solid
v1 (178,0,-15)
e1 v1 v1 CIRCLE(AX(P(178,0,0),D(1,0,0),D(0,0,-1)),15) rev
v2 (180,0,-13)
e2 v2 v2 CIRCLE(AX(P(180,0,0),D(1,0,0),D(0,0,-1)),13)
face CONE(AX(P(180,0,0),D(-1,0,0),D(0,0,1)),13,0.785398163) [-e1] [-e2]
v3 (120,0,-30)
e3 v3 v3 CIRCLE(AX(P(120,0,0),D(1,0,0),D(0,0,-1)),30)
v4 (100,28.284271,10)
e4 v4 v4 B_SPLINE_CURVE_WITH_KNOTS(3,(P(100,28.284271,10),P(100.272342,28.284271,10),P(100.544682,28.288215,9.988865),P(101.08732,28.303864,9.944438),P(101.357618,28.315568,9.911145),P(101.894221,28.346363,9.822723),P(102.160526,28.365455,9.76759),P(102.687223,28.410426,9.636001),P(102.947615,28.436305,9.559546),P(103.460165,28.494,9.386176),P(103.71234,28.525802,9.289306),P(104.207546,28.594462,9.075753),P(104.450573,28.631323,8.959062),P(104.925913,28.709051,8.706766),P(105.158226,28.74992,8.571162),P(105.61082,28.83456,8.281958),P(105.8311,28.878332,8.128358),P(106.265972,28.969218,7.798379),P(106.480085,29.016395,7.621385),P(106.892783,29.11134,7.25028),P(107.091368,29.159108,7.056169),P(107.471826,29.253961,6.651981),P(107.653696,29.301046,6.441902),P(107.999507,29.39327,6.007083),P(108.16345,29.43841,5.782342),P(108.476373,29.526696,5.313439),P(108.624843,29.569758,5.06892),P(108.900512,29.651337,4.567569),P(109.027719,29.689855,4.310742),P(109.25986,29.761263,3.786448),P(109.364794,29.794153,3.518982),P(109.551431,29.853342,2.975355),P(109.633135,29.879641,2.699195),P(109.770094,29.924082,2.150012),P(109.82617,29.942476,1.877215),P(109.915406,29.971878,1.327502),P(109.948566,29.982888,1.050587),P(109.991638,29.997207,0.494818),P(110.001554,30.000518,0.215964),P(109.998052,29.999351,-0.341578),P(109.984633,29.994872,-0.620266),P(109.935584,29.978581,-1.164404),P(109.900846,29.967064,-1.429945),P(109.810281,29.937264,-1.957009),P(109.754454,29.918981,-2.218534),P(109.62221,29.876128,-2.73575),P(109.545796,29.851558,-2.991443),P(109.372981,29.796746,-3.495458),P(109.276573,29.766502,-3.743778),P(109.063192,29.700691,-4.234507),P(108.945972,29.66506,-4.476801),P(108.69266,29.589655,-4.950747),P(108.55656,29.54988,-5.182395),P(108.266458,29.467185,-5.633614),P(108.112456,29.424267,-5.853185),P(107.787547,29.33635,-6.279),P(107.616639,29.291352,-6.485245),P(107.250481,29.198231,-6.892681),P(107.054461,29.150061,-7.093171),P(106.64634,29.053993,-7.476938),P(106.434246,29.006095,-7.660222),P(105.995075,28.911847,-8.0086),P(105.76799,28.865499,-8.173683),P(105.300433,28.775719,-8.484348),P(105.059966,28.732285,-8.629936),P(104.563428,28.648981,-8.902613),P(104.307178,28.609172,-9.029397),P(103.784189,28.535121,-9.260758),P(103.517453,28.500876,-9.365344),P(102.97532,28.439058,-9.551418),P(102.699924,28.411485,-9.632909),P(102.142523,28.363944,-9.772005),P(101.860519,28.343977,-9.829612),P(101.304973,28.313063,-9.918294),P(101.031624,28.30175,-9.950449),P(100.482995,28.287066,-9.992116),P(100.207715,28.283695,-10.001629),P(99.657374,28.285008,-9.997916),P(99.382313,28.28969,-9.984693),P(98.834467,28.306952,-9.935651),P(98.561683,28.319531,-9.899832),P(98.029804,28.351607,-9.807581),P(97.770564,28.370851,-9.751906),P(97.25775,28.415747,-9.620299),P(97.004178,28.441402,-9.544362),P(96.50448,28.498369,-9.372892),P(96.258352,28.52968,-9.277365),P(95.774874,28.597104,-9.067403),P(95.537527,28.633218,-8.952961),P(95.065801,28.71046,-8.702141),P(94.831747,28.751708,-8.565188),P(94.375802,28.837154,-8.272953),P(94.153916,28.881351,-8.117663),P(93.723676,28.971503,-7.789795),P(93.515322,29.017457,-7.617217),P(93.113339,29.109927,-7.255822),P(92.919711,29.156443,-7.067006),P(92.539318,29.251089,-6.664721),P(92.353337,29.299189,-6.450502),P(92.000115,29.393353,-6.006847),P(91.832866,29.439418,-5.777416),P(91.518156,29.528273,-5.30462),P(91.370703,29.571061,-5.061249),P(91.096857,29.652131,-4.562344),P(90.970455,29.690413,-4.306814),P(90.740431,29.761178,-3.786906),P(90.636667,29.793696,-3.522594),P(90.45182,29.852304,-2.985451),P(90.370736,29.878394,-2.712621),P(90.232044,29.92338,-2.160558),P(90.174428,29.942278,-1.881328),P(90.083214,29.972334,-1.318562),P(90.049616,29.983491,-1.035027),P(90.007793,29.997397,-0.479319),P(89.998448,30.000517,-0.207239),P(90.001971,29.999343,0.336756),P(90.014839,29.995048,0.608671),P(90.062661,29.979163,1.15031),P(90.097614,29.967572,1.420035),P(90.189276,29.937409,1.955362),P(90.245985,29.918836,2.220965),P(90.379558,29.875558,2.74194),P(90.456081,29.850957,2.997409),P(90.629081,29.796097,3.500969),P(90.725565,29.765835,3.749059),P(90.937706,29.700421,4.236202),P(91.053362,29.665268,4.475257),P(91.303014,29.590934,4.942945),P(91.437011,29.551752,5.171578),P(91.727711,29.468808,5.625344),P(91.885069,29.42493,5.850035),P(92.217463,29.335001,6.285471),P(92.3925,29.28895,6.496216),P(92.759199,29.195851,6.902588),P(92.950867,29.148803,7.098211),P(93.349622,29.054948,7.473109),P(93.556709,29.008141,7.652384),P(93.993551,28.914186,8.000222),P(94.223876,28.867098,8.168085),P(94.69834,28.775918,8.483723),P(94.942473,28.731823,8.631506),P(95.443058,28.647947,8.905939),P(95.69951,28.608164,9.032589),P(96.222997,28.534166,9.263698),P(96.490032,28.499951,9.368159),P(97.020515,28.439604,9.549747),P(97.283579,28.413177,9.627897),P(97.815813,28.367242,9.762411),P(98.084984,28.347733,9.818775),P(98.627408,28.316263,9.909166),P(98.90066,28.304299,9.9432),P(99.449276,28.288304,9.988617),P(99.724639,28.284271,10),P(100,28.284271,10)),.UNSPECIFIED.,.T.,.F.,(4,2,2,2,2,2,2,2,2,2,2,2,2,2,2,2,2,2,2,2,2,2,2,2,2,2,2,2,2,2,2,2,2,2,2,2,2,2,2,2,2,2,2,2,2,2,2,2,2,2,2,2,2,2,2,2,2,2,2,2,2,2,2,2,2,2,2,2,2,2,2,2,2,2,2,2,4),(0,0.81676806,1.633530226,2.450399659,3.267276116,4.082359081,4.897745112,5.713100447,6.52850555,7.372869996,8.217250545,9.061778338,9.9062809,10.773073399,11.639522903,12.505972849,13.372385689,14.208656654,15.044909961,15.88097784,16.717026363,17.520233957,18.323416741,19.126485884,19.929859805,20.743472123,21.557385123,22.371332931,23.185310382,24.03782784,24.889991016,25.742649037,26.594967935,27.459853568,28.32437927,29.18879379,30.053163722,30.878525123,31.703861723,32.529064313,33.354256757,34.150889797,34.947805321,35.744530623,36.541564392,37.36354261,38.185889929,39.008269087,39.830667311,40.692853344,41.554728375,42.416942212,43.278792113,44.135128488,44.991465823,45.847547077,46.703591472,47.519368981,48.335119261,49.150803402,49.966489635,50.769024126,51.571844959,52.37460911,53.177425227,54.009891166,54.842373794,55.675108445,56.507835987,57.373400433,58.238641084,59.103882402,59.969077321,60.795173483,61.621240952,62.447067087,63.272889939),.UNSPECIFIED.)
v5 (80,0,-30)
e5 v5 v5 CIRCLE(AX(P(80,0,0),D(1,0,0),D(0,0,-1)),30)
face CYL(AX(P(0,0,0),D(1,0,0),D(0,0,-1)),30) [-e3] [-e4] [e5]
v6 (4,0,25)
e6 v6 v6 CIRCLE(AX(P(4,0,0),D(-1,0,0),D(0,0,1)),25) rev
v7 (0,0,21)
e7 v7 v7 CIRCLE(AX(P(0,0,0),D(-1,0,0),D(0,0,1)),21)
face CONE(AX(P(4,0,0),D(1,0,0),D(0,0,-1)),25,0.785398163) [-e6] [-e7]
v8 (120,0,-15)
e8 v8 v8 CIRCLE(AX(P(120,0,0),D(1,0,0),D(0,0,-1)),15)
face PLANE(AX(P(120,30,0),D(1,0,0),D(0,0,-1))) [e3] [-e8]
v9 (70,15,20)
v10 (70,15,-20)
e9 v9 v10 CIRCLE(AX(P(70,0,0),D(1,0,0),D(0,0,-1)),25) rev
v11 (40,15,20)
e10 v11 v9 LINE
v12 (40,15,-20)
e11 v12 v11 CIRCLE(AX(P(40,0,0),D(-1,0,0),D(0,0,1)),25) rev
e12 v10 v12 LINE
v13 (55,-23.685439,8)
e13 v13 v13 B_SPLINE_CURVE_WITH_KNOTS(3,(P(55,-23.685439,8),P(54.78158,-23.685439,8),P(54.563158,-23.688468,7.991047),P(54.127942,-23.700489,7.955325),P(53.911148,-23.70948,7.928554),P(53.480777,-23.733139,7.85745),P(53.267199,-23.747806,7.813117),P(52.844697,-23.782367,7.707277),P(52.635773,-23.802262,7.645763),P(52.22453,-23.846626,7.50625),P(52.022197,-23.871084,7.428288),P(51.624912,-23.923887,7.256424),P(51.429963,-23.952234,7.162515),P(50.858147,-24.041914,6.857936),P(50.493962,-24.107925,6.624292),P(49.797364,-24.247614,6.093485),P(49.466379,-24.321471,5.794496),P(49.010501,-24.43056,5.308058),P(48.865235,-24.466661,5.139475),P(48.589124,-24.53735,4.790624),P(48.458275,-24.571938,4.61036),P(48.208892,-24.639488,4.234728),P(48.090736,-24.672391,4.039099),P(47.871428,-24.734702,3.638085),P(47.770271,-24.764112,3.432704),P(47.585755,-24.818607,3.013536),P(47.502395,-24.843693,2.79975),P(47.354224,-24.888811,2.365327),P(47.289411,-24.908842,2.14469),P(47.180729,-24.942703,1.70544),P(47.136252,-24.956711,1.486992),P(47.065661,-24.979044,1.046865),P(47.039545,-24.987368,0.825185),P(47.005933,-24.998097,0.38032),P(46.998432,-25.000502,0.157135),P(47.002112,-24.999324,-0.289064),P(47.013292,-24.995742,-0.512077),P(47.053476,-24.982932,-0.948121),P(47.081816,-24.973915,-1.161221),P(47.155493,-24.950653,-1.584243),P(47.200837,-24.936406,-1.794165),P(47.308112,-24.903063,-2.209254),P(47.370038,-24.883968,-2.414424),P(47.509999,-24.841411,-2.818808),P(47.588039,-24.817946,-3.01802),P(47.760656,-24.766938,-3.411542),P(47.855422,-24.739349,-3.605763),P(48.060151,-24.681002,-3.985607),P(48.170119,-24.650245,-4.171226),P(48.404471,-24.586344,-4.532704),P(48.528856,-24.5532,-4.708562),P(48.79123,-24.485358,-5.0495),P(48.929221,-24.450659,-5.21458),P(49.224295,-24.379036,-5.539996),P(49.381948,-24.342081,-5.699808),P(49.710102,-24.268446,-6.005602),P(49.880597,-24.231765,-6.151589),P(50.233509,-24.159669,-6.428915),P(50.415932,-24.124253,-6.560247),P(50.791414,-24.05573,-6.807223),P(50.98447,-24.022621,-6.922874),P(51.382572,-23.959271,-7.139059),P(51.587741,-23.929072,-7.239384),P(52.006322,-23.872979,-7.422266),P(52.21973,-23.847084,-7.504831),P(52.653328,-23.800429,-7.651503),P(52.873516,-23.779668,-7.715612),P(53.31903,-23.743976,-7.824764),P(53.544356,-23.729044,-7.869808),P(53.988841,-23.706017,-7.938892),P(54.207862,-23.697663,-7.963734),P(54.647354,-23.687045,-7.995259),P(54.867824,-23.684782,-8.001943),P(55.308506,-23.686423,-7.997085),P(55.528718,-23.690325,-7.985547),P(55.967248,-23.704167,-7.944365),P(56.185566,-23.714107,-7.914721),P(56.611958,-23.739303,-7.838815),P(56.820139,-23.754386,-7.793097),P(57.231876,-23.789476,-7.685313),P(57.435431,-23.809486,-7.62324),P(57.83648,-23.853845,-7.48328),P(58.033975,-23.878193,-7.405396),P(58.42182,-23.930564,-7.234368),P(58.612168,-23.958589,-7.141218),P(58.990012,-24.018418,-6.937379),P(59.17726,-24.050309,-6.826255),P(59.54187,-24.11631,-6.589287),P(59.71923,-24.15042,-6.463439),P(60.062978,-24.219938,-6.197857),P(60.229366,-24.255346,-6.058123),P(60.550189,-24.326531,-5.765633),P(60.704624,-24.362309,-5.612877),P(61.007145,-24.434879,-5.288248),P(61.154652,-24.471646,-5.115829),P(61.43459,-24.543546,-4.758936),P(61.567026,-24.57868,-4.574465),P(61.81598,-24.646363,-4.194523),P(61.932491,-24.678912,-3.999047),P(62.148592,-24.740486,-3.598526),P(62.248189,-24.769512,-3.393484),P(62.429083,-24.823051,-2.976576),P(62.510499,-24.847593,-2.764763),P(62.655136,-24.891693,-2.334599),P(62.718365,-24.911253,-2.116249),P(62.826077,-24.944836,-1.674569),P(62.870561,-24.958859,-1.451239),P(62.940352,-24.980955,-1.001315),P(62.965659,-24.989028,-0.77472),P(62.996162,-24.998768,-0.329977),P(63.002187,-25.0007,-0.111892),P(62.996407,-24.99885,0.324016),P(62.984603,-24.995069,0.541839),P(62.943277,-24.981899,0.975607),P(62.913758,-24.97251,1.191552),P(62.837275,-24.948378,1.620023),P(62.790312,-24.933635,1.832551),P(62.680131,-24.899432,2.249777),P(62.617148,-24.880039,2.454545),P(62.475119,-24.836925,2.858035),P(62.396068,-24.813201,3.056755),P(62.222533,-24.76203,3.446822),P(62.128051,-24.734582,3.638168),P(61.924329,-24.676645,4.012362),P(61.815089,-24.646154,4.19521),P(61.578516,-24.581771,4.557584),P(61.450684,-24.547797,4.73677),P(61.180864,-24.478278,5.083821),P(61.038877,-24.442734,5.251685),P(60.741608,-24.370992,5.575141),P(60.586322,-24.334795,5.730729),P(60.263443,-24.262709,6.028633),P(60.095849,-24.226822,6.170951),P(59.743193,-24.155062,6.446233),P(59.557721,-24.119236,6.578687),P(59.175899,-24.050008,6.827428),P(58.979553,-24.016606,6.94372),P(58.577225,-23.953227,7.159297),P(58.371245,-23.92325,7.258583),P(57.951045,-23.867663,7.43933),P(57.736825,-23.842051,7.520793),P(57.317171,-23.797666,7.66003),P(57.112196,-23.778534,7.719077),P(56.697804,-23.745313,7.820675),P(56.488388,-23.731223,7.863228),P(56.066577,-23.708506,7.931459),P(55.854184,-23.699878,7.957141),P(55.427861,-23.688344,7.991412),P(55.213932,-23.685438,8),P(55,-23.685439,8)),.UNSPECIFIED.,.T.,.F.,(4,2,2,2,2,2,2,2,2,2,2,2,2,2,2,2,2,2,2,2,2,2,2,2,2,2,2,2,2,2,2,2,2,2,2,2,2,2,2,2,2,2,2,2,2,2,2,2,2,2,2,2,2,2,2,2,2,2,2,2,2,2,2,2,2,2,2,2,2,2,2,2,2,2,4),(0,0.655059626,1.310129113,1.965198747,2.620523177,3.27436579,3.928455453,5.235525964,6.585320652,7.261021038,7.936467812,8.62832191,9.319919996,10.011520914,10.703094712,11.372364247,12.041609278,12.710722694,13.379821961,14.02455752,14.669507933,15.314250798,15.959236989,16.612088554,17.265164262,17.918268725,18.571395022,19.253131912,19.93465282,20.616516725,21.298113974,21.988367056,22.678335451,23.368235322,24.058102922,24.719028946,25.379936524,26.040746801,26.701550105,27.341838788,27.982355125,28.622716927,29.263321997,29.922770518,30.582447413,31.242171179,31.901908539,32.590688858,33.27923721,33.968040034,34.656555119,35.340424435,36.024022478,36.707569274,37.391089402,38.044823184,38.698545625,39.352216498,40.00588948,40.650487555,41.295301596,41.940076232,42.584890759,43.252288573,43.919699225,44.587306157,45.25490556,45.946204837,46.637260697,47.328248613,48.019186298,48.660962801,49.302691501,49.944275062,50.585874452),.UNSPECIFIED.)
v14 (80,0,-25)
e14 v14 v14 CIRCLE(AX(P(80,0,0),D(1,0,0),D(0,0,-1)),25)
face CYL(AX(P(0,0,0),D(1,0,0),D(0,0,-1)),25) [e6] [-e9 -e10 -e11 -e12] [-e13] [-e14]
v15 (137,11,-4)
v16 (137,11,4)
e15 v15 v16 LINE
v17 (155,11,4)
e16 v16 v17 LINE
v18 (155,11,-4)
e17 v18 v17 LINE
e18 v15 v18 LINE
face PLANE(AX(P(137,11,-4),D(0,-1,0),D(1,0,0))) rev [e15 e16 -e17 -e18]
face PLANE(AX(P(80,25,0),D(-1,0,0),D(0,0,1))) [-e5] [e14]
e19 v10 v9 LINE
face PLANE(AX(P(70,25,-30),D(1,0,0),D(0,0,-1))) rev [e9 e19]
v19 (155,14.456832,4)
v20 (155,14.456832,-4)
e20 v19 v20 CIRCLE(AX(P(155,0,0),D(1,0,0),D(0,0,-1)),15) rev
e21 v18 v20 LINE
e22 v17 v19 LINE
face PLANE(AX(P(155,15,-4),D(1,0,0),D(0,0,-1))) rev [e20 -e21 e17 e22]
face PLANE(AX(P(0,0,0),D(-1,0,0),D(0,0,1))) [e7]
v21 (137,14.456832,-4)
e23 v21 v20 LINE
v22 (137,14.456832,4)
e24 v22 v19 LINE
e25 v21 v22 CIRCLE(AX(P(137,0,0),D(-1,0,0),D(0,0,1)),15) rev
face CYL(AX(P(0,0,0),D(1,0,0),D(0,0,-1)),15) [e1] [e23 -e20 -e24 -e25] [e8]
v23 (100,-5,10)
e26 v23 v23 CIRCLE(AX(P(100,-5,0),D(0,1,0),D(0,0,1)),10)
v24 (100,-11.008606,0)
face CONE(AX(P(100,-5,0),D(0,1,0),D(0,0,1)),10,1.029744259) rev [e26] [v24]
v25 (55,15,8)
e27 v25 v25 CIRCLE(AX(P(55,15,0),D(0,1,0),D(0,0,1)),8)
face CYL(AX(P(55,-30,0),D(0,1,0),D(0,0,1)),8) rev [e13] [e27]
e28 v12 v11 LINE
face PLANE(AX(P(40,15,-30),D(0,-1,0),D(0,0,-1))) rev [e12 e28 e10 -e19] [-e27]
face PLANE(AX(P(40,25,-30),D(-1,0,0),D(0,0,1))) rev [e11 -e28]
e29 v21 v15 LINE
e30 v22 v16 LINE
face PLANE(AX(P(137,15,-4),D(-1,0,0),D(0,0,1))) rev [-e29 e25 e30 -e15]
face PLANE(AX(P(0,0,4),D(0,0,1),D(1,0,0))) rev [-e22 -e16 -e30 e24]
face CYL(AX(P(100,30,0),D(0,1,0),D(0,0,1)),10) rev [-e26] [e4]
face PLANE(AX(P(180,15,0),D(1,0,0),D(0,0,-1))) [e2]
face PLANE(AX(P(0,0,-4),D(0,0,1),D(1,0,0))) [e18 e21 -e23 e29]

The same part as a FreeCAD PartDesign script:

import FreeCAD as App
import Part
import Sketcher
Q = App.Units.Quantity


def edges_at(feature, points):
    """Names of the edges that pass closest to the given points."""
    edges = feature.Shape.Edges
    near = lambda p: min(range(len(edges)), key=lambda i: edges[i].distToShape(Part.Vertex(*p))[0])
    return sorted({f"Edge{near(p) + 1}" for p in points})

doc = App.newDocument("Part")
params = doc.addObject("Spreadsheet::Sheet", "Params")
for row, (alias, value) in enumerate([
    ("sketch1_width", "180 mm"),
    ("sketch1_width2", "60 mm"),
    ("sketch1_width3", "40 mm"),
    ("sketch1_height", "25 mm"),
    ("sketch1_height2", "15 mm"),
    ("revolution_angle", "360 deg"),
    ("sketch2_width", "30 mm"),
    ("sketch2_height", "10 mm"),
    ("sketch3_diameter", "16 mm"),
    ("sketch4_width", "18 mm"),
    ("sketch4_height", "4 mm"),
    ("pocket3_length", "8 mm"),
    ("sketch5_diameter", "20 mm"),
    ("hole_diameter", "20 mm"),
    ("hole_depth", "35 mm"),
    ("chamfer_size", "2 mm"),
    ("chamfer2_size", "4 mm"),
], start=1):
    params.set(f"A{row}", alias)
    params.set(f"B{row}", "=" + value)
    params.setAlias(f"B{row}", alias)

body = doc.addObject("PartDesign::Body", "Body")

sketch1 = doc.addObject("Sketcher::SketchObject", "Sketch")
body.addObject(sketch1)
sketch1.AttachmentSupport = (doc.XY_Plane, [""])
sketch1.MapMode = "FlatFace"
sketch1.addGeometry([
    Part.LineSegment(App.Vector(0, 25, 0), App.Vector(0, 0, 0)),
    Part.LineSegment(App.Vector(0, 0, 0), App.Vector(180, 0, 0)),
    Part.LineSegment(App.Vector(180, 0, 0), App.Vector(180, 15, 0)),
    Part.LineSegment(App.Vector(180, 15, 0), App.Vector(120, 15, 0)),
    Part.LineSegment(App.Vector(120, 15, 0), App.Vector(120, 30, 0)),
    Part.LineSegment(App.Vector(120, 30, 0), App.Vector(80, 30, 0)),
    Part.LineSegment(App.Vector(80, 30, 0), App.Vector(80, 25, 0)),
    Part.LineSegment(App.Vector(80, 25, 0), App.Vector(0, 25, 0)),
], False)
sketch1.addConstraint([
    Sketcher.Constraint("Coincident", 0, 2, 1, 1),
    Sketcher.Constraint("Coincident", 1, 2, 2, 1),
    Sketcher.Constraint("Coincident", 2, 2, 3, 1),
    Sketcher.Constraint("Coincident", 3, 2, 4, 1),
    Sketcher.Constraint("Coincident", 4, 2, 5, 1),
    Sketcher.Constraint("Coincident", 5, 2, 6, 1),
    Sketcher.Constraint("Coincident", 6, 2, 7, 1),
    Sketcher.Constraint("Coincident", 7, 2, 0, 1),
    Sketcher.Constraint("Vertical", 0),
    Sketcher.Constraint("Horizontal", 1),
    Sketcher.Constraint("Vertical", 2),
    Sketcher.Constraint("Horizontal", 3),
    Sketcher.Constraint("Vertical", 4),
    Sketcher.Constraint("Horizontal", 5),
    Sketcher.Constraint("Vertical", 6),
    Sketcher.Constraint("Horizontal", 7),
    Sketcher.Constraint("Coincident", 0, 2, -1, 1),
    Sketcher.Constraint("Equal", 2, 4),
    Sketcher.Constraint("DistanceX", 1, 1, 1, 2, Q("180 mm")),
    Sketcher.Constraint("DistanceX", 3, 2, 3, 1, Q("60 mm")),
    Sketcher.Constraint("DistanceX", 5, 2, 5, 1, Q("40 mm")),
    Sketcher.Constraint("DistanceY", 0, 2, 0, 1, Q("25 mm")),
    Sketcher.Constraint("DistanceY", 2, 1, 2, 2, Q("15 mm")),
])
sketch1.setExpression("Constraints[18]", "Params.sketch1_width")
sketch1.setExpression("Constraints[19]", "Params.sketch1_width2")
sketch1.setExpression("Constraints[20]", "Params.sketch1_width3")
sketch1.setExpression("Constraints[21]", "Params.sketch1_height")
sketch1.setExpression("Constraints[22]", "Params.sketch1_height2")
revolution = doc.addObject("PartDesign::Revolution", "Revolution")
body.addObject(revolution)
revolution.Profile = sketch1
revolution.ReferenceAxis = (sketch1, ["H_Axis"])
revolution.setExpression("Angle", "Params.revolution_angle")

sketch2 = doc.addObject("Sketcher::SketchObject", "Sketch001")
body.addObject(sketch2)
sketch2.AttachmentSupport = (doc.XY_Plane, [""])
sketch2.MapMode = "FlatFace"
sketch2.addGeometry([
    Part.LineSegment(App.Vector(40, 25, 0), App.Vector(40, 15, 0)),
    Part.LineSegment(App.Vector(40, 15, 0), App.Vector(70, 15, 0)),
    Part.LineSegment(App.Vector(70, 15, 0), App.Vector(70, 25, 0)),
    Part.LineSegment(App.Vector(70, 25, 0), App.Vector(40, 25, 0)),
], False)
sketch2.addConstraint([
    Sketcher.Constraint("Coincident", 0, 2, 1, 1),
    Sketcher.Constraint("Coincident", 1, 2, 2, 1),
    Sketcher.Constraint("Coincident", 2, 2, 3, 1),
    Sketcher.Constraint("Coincident", 3, 2, 0, 1),
    Sketcher.Constraint("Vertical", 0),
    Sketcher.Constraint("Horizontal", 1),
    Sketcher.Constraint("Vertical", 2),
    Sketcher.Constraint("Horizontal", 3),
    Sketcher.Constraint("DistanceX", 1, 1, 1, 2, Q("30 mm")),
    Sketcher.Constraint("DistanceY", 0, 2, 0, 1, Q("10 mm")),
    Sketcher.Constraint("DistanceX", -1, 1, 0, 2, Q("40 mm")),
    Sketcher.Constraint("DistanceY", -1, 1, 0, 2, Q("15 mm")),
])
sketch2.setExpression("Constraints[8]", "Params.sketch2_width")
sketch2.setExpression("Constraints[9]", "Params.sketch2_height")
pocket1 = doc.addObject("PartDesign::Pocket", "Pocket")
body.addObject(pocket1)
pocket1.Profile = sketch2
pocket1.Type = "ThroughAll"
pocket1.Midplane = True

sketch3 = doc.addObject("Sketcher::SketchObject", "Sketch002")
body.addObject(sketch3)
sketch3.AttachmentSupport = (doc.XZ_Plane, [""])
sketch3.MapMode = "FlatFace"
sketch3.AttachmentOffset = App.Placement(App.Vector(0, 0, -15), App.Rotation())
sketch3.addGeometry(Part.Circle(App.Vector(55, 0, 0), App.Vector(0, 0, 1), 8), False)
sketch3.addConstraint([
    Sketcher.Constraint("PointOnObject", 0, 3, -1),
    Sketcher.Constraint("Diameter", 0, Q("16 mm")),
    Sketcher.Constraint("DistanceX", -1, 1, 0, 3, Q("55 mm")),
])
sketch3.setExpression("Constraints[1]", "Params.sketch3_diameter")
pocket2 = doc.addObject("PartDesign::Pocket", "Pocket001")
body.addObject(pocket2)
pocket2.Profile = sketch3
pocket2.Type = "ThroughAll"
pocket2.Reversed = True

sketch4 = doc.addObject("Sketcher::SketchObject", "Sketch003")
body.addObject(sketch4)
sketch4.AttachmentSupport = (doc.XY_Plane, [""])
sketch4.MapMode = "FlatFace"
sketch4.addGeometry([
    Part.LineSegment(App.Vector(137, 15, 0), App.Vector(137, 11, 0)),
    Part.LineSegment(App.Vector(137, 11, 0), App.Vector(155, 11, 0)),
    Part.LineSegment(App.Vector(155, 11, 0), App.Vector(155, 15, 0)),
    Part.LineSegment(App.Vector(155, 15, 0), App.Vector(137, 15, 0)),
], False)
sketch4.addConstraint([
    Sketcher.Constraint("Coincident", 0, 2, 1, 1),
    Sketcher.Constraint("Coincident", 1, 2, 2, 1),
    Sketcher.Constraint("Coincident", 2, 2, 3, 1),
    Sketcher.Constraint("Coincident", 3, 2, 0, 1),
    Sketcher.Constraint("Vertical", 0),
    Sketcher.Constraint("Horizontal", 1),
    Sketcher.Constraint("Vertical", 2),
    Sketcher.Constraint("Horizontal", 3),
    Sketcher.Constraint("DistanceX", 1, 1, 1, 2, Q("18 mm")),
    Sketcher.Constraint("DistanceY", 0, 2, 0, 1, Q("4 mm")),
    Sketcher.Constraint("DistanceX", -1, 1, 0, 2, Q("137 mm")),
    Sketcher.Constraint("DistanceY", -1, 1, 0, 2, Q("11 mm")),
])
sketch4.setExpression("Constraints[8]", "Params.sketch4_width")
sketch4.setExpression("Constraints[9]", "Params.sketch4_height")
pocket3 = doc.addObject("PartDesign::Pocket", "Pocket002")
body.addObject(pocket3)
pocket3.Profile = sketch4
pocket3.setExpression("Length", "Params.pocket3_length")
pocket3.Midplane = True

sketch5 = doc.addObject("Sketcher::SketchObject", "Sketch004")
body.addObject(sketch5)
sketch5.AttachmentSupport = (doc.XZ_Plane, [""])
sketch5.MapMode = "FlatFace"
sketch5.AttachmentOffset = App.Placement(App.Vector(0, 0, -30), App.Rotation())
sketch5.addGeometry(Part.Circle(App.Vector(100, 0, 0), App.Vector(0, 0, 1), 10), False)
sketch5.addConstraint([
    Sketcher.Constraint("PointOnObject", 0, 3, -1),
    Sketcher.Constraint("Diameter", 0, Q("20 mm")),
    Sketcher.Constraint("DistanceX", -1, 1, 0, 3, Q("100 mm")),
])
sketch5.setExpression("Constraints[1]", "Params.sketch5_diameter")
doc.recompute()
hole = doc.addObject("PartDesign::Hole", "Hole")
body.addObject(hole)
hole.Profile = sketch5
hole.ThreadType = "None"
hole.setExpression("Diameter", "Params.hole_diameter")
hole.DepthType = "Dimension"
hole.setExpression("Depth", "Params.hole_depth")
hole.DrillPoint = "Angled"
hole.DrillPointAngle = 118
hole.Reversed = True
doc.recompute()

chamfer = doc.addObject("PartDesign::Chamfer", "Chamfer")
body.addObject(chamfer)
chamfer.Base = (hole, edges_at(hole, [(180, 0, 15)]))
chamfer.setExpression("Size", "Params.chamfer_size")
doc.recompute()

chamfer2 = doc.addObject("PartDesign::Chamfer", "Chamfer001")
body.addObject(chamfer2)
chamfer2.Base = (chamfer, edges_at(chamfer, [(0, 0, 25)]))
chamfer2.setExpression("Size", "Params.chamfer2_size")

doc.recompute()
